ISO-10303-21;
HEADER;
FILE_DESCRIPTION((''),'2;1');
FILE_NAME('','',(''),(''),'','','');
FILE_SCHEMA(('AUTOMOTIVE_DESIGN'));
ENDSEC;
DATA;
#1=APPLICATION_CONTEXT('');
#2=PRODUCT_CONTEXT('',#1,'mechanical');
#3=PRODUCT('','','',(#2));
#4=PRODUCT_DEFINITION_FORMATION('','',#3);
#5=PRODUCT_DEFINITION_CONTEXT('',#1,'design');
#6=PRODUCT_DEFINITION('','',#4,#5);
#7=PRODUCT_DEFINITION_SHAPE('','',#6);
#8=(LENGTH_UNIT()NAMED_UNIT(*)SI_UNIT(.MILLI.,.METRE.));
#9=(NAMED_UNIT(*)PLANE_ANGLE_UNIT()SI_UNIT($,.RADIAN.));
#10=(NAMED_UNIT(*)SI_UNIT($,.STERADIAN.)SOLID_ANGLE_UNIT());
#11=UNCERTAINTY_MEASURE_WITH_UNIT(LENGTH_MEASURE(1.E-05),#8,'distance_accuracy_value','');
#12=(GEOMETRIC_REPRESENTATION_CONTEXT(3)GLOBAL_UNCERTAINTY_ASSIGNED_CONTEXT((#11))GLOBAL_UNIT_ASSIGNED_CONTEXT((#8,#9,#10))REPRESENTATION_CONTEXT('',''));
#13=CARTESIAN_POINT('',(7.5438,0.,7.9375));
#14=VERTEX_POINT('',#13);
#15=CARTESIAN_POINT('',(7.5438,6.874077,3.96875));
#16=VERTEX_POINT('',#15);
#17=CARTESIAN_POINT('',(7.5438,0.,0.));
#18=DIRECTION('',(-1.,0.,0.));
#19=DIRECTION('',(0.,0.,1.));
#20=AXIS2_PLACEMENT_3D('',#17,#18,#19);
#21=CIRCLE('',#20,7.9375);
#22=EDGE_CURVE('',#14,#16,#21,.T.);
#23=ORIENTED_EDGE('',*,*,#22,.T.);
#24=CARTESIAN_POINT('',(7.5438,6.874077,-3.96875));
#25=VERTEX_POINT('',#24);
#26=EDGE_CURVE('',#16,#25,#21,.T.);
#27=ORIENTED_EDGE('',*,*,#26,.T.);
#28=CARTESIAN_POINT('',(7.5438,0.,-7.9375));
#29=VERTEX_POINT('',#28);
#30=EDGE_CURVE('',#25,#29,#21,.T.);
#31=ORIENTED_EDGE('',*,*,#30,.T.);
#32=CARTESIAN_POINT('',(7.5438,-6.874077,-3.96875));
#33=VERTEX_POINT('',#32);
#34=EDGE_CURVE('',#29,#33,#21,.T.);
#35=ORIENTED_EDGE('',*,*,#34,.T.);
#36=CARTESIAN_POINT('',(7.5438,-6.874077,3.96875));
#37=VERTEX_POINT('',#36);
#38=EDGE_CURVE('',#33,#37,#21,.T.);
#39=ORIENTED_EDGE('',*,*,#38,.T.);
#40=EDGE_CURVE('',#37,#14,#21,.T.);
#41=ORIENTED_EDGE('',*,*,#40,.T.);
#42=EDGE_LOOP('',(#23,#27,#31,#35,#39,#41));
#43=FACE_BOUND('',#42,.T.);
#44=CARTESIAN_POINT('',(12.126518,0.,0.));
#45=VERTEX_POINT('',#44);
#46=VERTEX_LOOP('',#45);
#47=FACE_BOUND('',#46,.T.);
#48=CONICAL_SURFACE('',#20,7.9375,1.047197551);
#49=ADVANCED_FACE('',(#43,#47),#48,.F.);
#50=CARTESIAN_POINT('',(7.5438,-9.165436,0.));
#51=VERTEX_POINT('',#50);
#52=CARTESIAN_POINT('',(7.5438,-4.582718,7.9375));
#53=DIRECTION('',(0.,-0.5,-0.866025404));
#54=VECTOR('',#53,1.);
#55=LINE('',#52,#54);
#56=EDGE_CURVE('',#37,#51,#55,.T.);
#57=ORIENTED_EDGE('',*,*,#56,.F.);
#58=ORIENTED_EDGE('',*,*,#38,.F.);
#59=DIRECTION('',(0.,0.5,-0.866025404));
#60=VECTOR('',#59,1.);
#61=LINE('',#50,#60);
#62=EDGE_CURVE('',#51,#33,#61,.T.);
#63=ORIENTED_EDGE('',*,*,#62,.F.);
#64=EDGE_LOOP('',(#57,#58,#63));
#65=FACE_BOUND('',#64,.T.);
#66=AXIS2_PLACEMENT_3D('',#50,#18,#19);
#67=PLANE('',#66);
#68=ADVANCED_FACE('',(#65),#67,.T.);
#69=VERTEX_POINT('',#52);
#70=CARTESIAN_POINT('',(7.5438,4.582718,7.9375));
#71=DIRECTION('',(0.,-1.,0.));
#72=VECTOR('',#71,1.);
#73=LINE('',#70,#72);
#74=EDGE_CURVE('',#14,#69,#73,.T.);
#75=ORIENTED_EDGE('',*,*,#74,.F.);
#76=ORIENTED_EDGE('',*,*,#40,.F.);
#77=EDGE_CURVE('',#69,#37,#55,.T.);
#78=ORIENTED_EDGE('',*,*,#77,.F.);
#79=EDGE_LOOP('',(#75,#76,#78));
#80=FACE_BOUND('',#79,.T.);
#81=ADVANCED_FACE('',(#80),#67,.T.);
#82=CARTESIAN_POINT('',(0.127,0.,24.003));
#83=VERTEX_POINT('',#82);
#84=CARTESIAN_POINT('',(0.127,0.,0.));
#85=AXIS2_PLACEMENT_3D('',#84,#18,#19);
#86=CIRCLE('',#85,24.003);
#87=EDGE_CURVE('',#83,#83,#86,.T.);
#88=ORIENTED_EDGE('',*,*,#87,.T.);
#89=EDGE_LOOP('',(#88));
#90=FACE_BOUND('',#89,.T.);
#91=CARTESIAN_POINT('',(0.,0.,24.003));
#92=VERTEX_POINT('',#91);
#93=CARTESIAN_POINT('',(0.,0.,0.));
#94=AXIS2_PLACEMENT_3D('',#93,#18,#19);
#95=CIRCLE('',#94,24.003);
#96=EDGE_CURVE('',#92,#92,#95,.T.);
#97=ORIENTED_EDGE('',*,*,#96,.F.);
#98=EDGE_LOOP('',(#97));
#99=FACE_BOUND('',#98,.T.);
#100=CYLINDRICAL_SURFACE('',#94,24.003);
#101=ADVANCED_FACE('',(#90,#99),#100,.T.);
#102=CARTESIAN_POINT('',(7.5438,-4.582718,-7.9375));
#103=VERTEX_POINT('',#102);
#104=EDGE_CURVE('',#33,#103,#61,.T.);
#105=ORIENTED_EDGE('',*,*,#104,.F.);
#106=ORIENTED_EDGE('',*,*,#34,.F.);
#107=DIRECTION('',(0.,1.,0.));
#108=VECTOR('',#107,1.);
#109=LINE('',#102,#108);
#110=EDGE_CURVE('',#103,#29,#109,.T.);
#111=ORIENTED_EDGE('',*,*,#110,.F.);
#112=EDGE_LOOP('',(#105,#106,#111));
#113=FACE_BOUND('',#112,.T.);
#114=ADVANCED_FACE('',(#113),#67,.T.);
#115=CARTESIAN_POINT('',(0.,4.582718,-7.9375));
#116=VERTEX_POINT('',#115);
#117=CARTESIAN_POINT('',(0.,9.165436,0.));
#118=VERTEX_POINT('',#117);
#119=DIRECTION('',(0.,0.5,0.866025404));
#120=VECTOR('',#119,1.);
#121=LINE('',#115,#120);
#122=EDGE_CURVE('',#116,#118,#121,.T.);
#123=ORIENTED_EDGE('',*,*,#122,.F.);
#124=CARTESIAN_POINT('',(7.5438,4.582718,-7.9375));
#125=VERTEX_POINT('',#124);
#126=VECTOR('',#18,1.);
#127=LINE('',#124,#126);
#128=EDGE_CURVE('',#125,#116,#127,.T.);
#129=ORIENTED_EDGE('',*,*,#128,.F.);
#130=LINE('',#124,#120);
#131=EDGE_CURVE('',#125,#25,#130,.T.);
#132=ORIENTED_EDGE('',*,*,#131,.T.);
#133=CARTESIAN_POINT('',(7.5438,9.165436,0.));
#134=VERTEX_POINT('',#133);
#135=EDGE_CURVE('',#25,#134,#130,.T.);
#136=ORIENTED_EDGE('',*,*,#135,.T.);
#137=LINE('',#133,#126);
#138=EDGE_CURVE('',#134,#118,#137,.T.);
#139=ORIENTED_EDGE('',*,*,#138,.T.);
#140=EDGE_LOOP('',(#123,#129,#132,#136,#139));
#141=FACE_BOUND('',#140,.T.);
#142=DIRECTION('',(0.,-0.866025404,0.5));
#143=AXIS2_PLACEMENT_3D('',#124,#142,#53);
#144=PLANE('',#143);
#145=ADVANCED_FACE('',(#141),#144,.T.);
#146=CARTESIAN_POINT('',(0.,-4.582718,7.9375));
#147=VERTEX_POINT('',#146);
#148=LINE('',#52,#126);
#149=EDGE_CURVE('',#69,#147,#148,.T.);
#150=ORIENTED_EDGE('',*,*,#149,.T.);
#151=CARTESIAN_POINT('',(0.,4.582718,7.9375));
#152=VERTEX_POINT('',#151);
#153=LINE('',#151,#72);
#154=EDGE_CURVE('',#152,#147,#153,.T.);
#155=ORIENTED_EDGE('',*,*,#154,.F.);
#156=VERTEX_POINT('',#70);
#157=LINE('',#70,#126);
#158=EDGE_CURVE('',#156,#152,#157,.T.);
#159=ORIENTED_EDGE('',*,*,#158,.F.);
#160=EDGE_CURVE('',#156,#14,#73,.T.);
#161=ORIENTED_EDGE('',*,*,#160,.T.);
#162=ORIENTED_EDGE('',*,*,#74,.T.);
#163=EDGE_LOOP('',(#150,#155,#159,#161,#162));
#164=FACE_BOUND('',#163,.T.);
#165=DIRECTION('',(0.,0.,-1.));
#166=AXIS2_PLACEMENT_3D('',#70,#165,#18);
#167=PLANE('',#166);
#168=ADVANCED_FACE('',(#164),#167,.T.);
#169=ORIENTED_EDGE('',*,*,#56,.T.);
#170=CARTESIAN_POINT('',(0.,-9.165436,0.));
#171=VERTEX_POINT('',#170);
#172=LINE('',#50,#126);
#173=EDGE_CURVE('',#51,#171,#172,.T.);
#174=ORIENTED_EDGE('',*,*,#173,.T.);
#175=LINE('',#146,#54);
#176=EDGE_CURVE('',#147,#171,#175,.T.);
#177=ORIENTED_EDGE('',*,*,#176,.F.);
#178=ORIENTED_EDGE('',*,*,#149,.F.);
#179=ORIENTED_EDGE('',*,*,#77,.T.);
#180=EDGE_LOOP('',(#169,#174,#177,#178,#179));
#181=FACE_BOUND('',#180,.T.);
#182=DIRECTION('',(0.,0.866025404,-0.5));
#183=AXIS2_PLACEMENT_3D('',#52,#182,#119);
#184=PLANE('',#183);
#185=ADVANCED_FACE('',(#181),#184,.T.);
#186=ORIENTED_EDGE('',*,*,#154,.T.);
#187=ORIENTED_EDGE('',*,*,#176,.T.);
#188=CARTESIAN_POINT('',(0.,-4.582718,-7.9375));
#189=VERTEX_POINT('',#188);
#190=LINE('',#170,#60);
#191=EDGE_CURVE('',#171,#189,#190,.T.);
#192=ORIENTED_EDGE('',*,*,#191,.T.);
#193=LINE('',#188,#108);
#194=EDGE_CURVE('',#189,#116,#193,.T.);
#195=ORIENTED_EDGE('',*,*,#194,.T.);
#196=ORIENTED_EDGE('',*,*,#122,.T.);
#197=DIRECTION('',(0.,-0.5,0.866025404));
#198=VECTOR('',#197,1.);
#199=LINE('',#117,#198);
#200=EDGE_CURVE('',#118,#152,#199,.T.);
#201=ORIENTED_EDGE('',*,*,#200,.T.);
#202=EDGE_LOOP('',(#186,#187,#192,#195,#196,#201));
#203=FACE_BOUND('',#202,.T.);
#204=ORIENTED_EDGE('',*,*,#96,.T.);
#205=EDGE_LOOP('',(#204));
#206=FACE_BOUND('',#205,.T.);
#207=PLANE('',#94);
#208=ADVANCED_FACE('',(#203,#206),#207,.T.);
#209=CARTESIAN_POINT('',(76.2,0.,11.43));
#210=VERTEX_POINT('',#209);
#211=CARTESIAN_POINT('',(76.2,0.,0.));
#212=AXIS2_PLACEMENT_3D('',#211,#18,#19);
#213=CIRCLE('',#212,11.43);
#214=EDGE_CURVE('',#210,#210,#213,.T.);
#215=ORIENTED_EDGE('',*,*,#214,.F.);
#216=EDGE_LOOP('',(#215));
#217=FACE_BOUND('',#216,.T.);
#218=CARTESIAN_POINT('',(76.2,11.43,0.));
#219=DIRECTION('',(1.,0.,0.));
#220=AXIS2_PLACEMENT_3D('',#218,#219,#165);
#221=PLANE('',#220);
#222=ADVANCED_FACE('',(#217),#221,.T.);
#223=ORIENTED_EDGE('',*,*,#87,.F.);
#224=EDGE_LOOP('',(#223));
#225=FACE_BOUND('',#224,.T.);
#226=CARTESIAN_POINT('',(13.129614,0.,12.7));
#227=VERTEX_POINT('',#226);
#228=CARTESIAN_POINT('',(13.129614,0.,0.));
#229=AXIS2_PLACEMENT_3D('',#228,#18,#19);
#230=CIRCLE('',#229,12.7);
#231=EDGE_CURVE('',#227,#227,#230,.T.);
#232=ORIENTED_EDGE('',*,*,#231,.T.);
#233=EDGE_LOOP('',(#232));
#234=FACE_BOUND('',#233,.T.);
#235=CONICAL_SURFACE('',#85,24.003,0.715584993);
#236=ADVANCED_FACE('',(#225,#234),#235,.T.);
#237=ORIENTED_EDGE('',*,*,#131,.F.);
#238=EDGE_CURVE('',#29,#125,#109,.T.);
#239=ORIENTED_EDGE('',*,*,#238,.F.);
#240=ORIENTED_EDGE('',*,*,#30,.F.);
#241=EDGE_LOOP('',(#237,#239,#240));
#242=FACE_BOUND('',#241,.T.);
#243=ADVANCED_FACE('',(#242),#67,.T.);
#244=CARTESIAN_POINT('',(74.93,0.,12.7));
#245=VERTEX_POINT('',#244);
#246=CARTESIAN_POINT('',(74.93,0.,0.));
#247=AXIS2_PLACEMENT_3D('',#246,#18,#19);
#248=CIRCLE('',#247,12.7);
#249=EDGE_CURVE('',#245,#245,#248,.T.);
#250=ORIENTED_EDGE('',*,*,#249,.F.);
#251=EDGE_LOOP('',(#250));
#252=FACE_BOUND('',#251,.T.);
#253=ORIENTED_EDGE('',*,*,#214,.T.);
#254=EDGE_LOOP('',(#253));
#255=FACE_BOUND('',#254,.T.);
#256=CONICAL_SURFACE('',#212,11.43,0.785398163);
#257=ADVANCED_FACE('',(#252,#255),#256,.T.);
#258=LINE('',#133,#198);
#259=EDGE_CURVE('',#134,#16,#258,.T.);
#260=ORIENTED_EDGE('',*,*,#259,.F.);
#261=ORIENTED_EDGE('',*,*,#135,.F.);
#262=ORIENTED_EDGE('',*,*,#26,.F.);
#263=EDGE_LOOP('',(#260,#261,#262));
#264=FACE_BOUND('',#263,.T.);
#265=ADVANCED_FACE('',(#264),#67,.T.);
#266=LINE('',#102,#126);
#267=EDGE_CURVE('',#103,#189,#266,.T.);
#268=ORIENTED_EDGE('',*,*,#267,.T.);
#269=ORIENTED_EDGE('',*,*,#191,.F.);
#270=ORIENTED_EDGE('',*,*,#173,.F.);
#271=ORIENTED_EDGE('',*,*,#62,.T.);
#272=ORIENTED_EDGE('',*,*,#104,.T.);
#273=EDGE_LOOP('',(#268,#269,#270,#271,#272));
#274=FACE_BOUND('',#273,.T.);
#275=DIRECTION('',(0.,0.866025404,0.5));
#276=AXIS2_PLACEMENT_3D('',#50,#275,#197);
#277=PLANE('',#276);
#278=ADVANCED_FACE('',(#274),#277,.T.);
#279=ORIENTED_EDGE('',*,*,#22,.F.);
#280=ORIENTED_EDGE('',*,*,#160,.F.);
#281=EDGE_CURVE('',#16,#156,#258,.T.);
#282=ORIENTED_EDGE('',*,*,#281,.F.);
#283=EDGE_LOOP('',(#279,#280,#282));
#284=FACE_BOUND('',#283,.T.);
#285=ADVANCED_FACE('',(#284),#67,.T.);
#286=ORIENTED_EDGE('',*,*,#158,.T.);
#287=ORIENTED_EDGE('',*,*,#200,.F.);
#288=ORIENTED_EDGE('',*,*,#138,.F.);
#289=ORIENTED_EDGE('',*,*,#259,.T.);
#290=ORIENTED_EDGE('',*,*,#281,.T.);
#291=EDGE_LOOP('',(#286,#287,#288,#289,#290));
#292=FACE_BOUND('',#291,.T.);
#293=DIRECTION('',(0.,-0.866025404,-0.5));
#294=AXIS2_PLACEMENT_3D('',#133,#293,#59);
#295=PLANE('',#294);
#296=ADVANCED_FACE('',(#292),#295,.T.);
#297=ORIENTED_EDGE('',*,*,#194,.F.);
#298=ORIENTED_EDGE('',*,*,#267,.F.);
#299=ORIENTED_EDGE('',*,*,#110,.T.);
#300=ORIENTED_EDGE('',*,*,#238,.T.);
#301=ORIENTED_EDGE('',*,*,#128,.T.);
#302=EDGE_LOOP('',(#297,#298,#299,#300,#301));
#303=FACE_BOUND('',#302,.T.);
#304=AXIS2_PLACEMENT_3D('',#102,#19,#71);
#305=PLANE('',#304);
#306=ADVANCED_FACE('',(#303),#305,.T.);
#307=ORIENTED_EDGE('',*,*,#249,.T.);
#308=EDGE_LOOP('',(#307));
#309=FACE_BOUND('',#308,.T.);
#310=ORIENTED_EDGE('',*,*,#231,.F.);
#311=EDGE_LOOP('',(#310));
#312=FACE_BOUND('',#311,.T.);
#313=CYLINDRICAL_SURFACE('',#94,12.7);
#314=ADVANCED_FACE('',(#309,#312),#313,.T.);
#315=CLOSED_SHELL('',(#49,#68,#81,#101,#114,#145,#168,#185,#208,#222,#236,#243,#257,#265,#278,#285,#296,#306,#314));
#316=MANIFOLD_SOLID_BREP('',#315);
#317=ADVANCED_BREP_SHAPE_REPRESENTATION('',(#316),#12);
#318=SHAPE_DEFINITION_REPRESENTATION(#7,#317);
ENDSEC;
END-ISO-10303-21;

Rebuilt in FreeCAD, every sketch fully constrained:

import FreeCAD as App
import Part
import Sketcher

V = App.Vector
Q = App.Units.Quantity


def add_polygon(sketch, points):
    """Adds a closed chain of lines whose ends are joined by coincident constraints."""
    first, n = sketch.GeometryCount, len(points)
    for a, b in zip(points, points[1:] + points[:1]):
        sketch.addGeometry(Part.LineSegment(App.Vector(*a, 0), App.Vector(*b, 0)), False)
    for i in range(n):
        sketch.addConstraint(Sketcher.Constraint("Coincident", first + i, 2, first + (i + 1) % n, 1))

doc = App.newDocument("Part")
body = doc.addObject("PartDesign::Body", "Body")

# Sketch on XY plane
sketch1 = body.newObject("Sketcher::SketchObject", "Sketch")
sketch1.AttachmentSupport = (doc.getObject("XY_Plane"), [""])
sketch1.MapMode = "FlatFace"
add_polygon(sketch1, [(0, 24), (0, 0), (76.2, 0), (76.2, 11.43), (74.93, 12.7), (13.13, 12.7), (0.13, 24)])  # lines 0-6
sketch1.addConstraint(Sketcher.Constraint("Vertical", 0))
sketch1.addConstraint(Sketcher.Constraint("Horizontal", 1))
sketch1.addConstraint(Sketcher.Constraint("Vertical", 2))
sketch1.addConstraint(Sketcher.Constraint("Horizontal", 4))
sketch1.addConstraint(Sketcher.Constraint("Horizontal", 6))
sketch1.addConstraint(Sketcher.Constraint("Coincident", 0, 2, -1, 1))
sketch1.addConstraint(Sketcher.Constraint("DistanceX", 1, 1, 1, 2, Q("3 in")))
sketch1.addConstraint(Sketcher.Constraint("Angle", 3, Q("135 deg")))
sketch1.addConstraint(Sketcher.Constraint("Angle", 5, Q("139 deg")))
sketch1.addConstraint(Sketcher.Constraint("DistanceY", 2, 1, 2, 2, Q("0.45 in")))
sketch1.addConstraint(Sketcher.Constraint("DistanceY", -1, 1, 3, 2, Q("0.5 in")))
sketch1.addConstraint(Sketcher.Constraint("DistanceX", 6, 2, 6, 1, Q("0.005 in")))
sketch1.addConstraint(Sketcher.Constraint("DistanceY", 0, 2, 0, 1, Q("0.945 in")))
revolution = body.newObject("PartDesign::Revolution", "Revolution")
revolution.Profile = sketch1
revolution.ReferenceAxis = (sketch1, ["H_Axis"])
revolution.Angle = 360

# Sketch on XY plane
sketch2 = body.newObject("Sketcher::SketchObject", "Sketch001")
sketch2.AttachmentSupport = (doc.getObject("XY_Plane"), [""])
sketch2.MapMode = "FlatFace"
add_polygon(sketch2, [(8, 8), (0, 8), (0, 0), (12, 0)])  # lines 0-3
sketch2.addConstraint(Sketcher.Constraint("Horizontal", 0))
sketch2.addConstraint(Sketcher.Constraint("Vertical", 1))
sketch2.addConstraint(Sketcher.Constraint("Horizontal", 2))
sketch2.addConstraint(Sketcher.Constraint("Coincident", 1, 2, -1, 1))
sketch2.addConstraint(Sketcher.Constraint("Angle", 3, Q("120 deg")))
sketch2.addConstraint(Sketcher.Constraint("DistanceX", 0, 2, 0, 1, Q("0.297 in")))
sketch2.addConstraint(Sketcher.Constraint("DistanceY", 1, 2, 1, 1, Q("0.3125 in")))
groove = body.newObject("PartDesign::Groove", "Groove")
groove.Profile = sketch2
groove.ReferenceAxis = (sketch2, ["H_Axis"])
groove.Angle = 360

# Sketch on YZ plane
sketch3 = body.newObject("Sketcher::SketchObject", "Sketch002")
sketch3.AttachmentSupport = (doc.getObject("YZ_Plane"), [""])
sketch3.MapMode = "FlatFace"
add_polygon(sketch3, [(5, -8), (-5, -8), (-9, 0), (-5, 8), (5, 8), (9, 0)])  # lines 0-5
sketch3.addConstraint(Sketcher.Constraint("Horizontal", 0))
sketch3.addConstraint(Sketcher.Constraint("Horizontal", 3))
sketch3.addConstraint(Sketcher.Constraint("Symmetric", 0, 2, 3, 2, -1, 1))
sketch3.addConstraint(Sketcher.Constraint("Symmetric", 1, 2, 4, 2, -1, 1))
sketch3.addConstraint(Sketcher.Constraint("PointOnObject", 1, 2, -1))
sketch3.addConstraint(Sketcher.Constraint("Parallel", 2, 5))
sketch3.addConstraint(Sketcher.Constraint("Vertical", 0, 2, 2, 2))
sketch3.addConstraint(Sketcher.Constraint("Angle", 1, Q("120 deg")))
sketch3.addConstraint(Sketcher.Constraint("DistanceY", 0, 2, -1, 1, Q("0.3125 in")))
sketch3.addConstraint(Sketcher.Constraint("DistanceX", 0, 2, 0, 1, 9.165436))
pocket1 = body.newObject("PartDesign::Pocket", "Pocket")
pocket1.Profile = sketch3
pocket1.Length = Q("0.297 in")
pocket1.Reversed = True

doc.recompute()
